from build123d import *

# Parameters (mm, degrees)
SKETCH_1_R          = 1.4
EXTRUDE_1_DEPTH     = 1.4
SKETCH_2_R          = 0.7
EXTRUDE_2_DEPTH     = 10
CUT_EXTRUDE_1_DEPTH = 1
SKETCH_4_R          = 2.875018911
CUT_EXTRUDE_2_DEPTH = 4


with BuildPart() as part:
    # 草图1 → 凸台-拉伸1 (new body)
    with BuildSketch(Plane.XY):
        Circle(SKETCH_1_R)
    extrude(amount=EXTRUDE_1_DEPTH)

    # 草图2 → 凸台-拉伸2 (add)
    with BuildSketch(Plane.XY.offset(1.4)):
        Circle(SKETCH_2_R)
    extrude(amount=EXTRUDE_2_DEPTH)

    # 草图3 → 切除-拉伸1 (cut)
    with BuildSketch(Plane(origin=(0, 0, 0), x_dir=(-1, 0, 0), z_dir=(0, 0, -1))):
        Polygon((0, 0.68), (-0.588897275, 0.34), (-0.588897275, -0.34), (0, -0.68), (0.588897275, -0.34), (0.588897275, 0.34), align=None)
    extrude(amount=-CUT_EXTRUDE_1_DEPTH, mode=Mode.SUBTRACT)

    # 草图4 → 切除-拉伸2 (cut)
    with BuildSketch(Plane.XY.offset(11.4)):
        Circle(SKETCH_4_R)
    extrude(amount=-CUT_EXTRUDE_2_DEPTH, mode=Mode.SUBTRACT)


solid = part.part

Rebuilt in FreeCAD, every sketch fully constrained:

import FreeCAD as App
import Part
import Sketcher
from FreeCAD import Vector
Q = App.Units.Quantity

doc = App.newDocument("Part")
body = doc.addObject("PartDesign::Body", "Body")

sketch1 = body.newObject("Sketcher::SketchObject", "Sketch")
sketch1.AttachmentSupport = (doc.getObject("XY_Plane"), [""])
sketch1.MapMode = "FlatFace"
sketch1.addGeometry(Part.Circle(Vector(0, 0, 0), Vector(0, 0, 1), 1.4), False)
sketch1.addConstraint(Sketcher.Constraint("Coincident", 0, 3, -1, 1))
sketch1.addConstraint(Sketcher.Constraint("Diameter", 0, 2.8))
pad1 = body.newObject("PartDesign::Pad", "Pad")
pad1.Profile = sketch1
pad1.Length = 1.4

sketch2 = body.newObject("Sketcher::SketchObject", "Sketch001")
sketch2.AttachmentSupport = (doc.getObject("XY_Plane"), [""])
sketch2.MapMode = "FlatFace"
sketch2.AttachmentOffset = App.Placement(Vector(0, 0, 1.4), App.Rotation())
sketch2.addGeometry(Part.Circle(Vector(0, 0, 0), Vector(0, 0, 1), 0.7), False)
sketch2.addConstraint(Sketcher.Constraint("Coincident", 0, 3, -1, 1))
sketch2.addConstraint(Sketcher.Constraint("Diameter", 0, 1.4))
pad2 = body.newObject("PartDesign::Pad", "Pad001")
pad2.Profile = sketch2
pad2.Length = 10

sketch3 = body.newObject("Sketcher::SketchObject", "Sketch002")
sketch3.AttachmentSupport = (doc.getObject("XY_Plane"), [""])
sketch3.MapMode = "FlatFace"
sketch3.addGeometry(Part.LineSegment(Vector(0, 0.7, 0), Vector(0.6, 0.3, 0)), False)
sketch3.addGeometry(Part.LineSegment(Vector(0.6, 0.3, 0), Vector(0.6, -0.3, 0)), False)
sketch3.addGeometry(Part.LineSegment(Vector(0.6, -0.3, 0), Vector(0, -0.7, 0)), False)
sketch3.addGeometry(Part.LineSegment(Vector(0, -0.7, 0), Vector(-0.6, -0.3, 0)), False)
sketch3.addGeometry(Part.LineSegment(Vector(-0.6, -0.3, 0), Vector(-0.6, 0.3, 0)), False)
sketch3.addGeometry(Part.LineSegment(Vector(-0.6, 0.3, 0), Vector(0, 0.7, 0)), False)
sketch3.addConstraint(Sketcher.Constraint("Coincident", 0, 2, 1, 1))
sketch3.addConstraint(Sketcher.Constraint("Coincident", 1, 2, 2, 1))
sketch3.addConstraint(Sketcher.Constraint("Coincident", 2, 2, 3, 1))
sketch3.addConstraint(Sketcher.Constraint("Coincident", 3, 2, 4, 1))
sketch3.addConstraint(Sketcher.Constraint("Coincident", 4, 2, 5, 1))
sketch3.addConstraint(Sketcher.Constraint("Coincident", 5, 2, 0, 1))
sketch3.addConstraint(Sketcher.Constraint("Vertical", 1))
sketch3.addConstraint(Sketcher.Constraint("Vertical", 4))
sketch3.addConstraint(Sketcher.Constraint("Symmetric", 0, 2, 3, 2, -1, 1))
sketch3.addConstraint(Sketcher.Constraint("Symmetric", 2, 2, 5, 2, -1, 1))
sketch3.addConstraint(Sketcher.Constraint("PointOnObject", 2, 2, -2))
sketch3.addConstraint(Sketcher.Constraint("Parallel", 2, 5))
sketch3.addConstraint(Sketcher.Constraint("Horizontal", 1, 2, 3, 2))
sketch3.addConstraint(Sketcher.Constraint("Angle", 0, Q("-30 deg")))
sketch3.addConstraint(Sketcher.Constraint("DistanceY", 1, 2, 1, 1, 0.68))
sketch3.addConstraint(Sketcher.Constraint("Distance", 0, 0.68))
pocket1 = body.newObject("PartDesign::Pocket", "Pocket")
pocket1.Profile = sketch3
pocket1.Length = 1
pocket1.Reversed = True

sketch4 = body.newObject("Sketcher::SketchObject", "Sketch003")
sketch4.AttachmentSupport = (doc.getObject("XY_Plane"), [""])
sketch4.MapMode = "FlatFace"
sketch4.AttachmentOffset = App.Placement(Vector(0, 0, 11.4), App.Rotation())
sketch4.addGeometry(Part.Circle(Vector(0, 0, 0), Vector(0, 0, 1), 2.9), False)
sketch4.addConstraint(Sketcher.Constraint("Coincident", 0, 3, -1, 1))
sketch4.addConstraint(Sketcher.Constraint("Diameter", 0, 5.750038))
pocket2 = body.newObject("PartDesign::Pocket", "Pocket001")
pocket2.Profile = sketch4
pocket2.Length = 4

doc.recompute()
